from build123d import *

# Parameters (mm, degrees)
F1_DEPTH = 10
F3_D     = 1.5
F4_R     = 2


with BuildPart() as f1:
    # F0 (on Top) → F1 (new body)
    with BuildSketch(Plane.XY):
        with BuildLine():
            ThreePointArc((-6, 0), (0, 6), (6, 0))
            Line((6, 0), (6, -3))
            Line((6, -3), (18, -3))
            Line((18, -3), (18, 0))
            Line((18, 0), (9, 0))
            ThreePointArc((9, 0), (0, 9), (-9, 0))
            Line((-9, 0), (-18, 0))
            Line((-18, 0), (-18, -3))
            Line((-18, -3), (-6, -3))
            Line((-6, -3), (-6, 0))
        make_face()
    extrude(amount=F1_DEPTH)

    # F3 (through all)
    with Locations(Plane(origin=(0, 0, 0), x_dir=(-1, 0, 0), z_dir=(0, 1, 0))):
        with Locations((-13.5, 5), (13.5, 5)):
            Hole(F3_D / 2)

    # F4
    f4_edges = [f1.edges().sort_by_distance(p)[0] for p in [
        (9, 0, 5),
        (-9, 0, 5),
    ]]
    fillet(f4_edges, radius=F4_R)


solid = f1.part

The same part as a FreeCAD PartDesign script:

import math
import FreeCAD as App
import Part
import Sketcher

V = App.Vector
Q = App.Units.Quantity


def edges_at(feature, points):
    """Names of the edges that pass closest to the given points."""
    edges = feature.Shape.Edges
    near = lambda p: min(range(len(edges)), key=lambda i: edges[i].distToShape(Part.Vertex(*p))[0])
    return sorted({f"Edge{near(p) + 1}" for p in points})

doc = App.newDocument("Part")
body = doc.addObject("PartDesign::Body", "Body")

sketch1 = doc.addObject("Sketcher::SketchObject", "Sketch")
body.addObject(sketch1)
sketch1.AttachmentSupport = (doc.XY_Plane, [""])
sketch1.MapMode = "FlatFace"
sketch1.addGeometry([
    Part.ArcOfCircle(Part.Circle(V(0, 0, 0), V(0, 0, 1), 6), math.radians(0), math.radians(180)),
    Part.LineSegment(V(6, 0, 0), V(6, -3, 0)),
    Part.LineSegment(V(6, -3, 0), V(18, -3, 0)),
    Part.LineSegment(V(18, -3, 0), V(18, 0, 0)),
    Part.LineSegment(V(18, 0, 0), V(9, 0, 0)),
    Part.ArcOfCircle(Part.Circle(V(0, 0, 0), V(0, 0, 1), 9), math.radians(0), math.radians(180)),
    Part.LineSegment(V(-9, 0, 0), V(-18, 0, 0)),
    Part.LineSegment(V(-18, 0, 0), V(-18, -3, 0)),
    Part.LineSegment(V(-18, -3, 0), V(-6, -3, 0)),
    Part.LineSegment(V(-6, -3, 0), V(-6, 0, 0)),
], False)
sketch1.addConstraint([
    Sketcher.Constraint("Tangent", 0, 1, 1, 1),
    Sketcher.Constraint("Coincident", 1, 2, 2, 1),
    Sketcher.Constraint("Coincident", 2, 2, 3, 1),
    Sketcher.Constraint("Coincident", 3, 2, 4, 1),
    Sketcher.Constraint("Coincident", 4, 2, 5, 1),
    Sketcher.Constraint("Coincident", 5, 2, 6, 1),
    Sketcher.Constraint("Coincident", 6, 2, 7, 1),
    Sketcher.Constraint("Coincident", 7, 2, 8, 1),
    Sketcher.Constraint("Coincident", 8, 2, 9, 1),
    Sketcher.Constraint("Tangent", 9, 2, 0, 2),
    Sketcher.Constraint("Vertical", 1),
    Sketcher.Constraint("Horizontal", 2),
    Sketcher.Constraint("Vertical", 3),
    Sketcher.Constraint("Horizontal", 4),
    Sketcher.Constraint("Horizontal", 6),
    Sketcher.Constraint("Vertical", 7),
    Sketcher.Constraint("Horizontal", 8),
    Sketcher.Constraint("Vertical", 9),
    Sketcher.Constraint("Coincident", 0, 3, -1, 1),
    Sketcher.Constraint("Coincident", 5, 3, -1, 1),
    Sketcher.Constraint("Symmetric", 3, 2, 6, 2, -1, 1),
    Sketcher.Constraint("PointOnObject", 3, 2, -1),
    Sketcher.Constraint("Horizontal", 2, 2, 7, 2),
    Sketcher.Constraint("Radius", 0, Q("6 mm")),
    Sketcher.Constraint("Radius", 5, Q("9 mm")),
    Sketcher.Constraint("DistanceX", 2, 1, 2, 2, Q("12 mm")),
    Sketcher.Constraint("DistanceY", 1, 2, 1, 1, Q("3 mm")),
])
pad1 = doc.addObject("PartDesign::Pad", "Pad")
body.addObject(pad1)
pad1.Profile = sketch1
pad1.Length = 10

sketch2 = doc.addObject("Sketcher::SketchObject", "Sketch001")
body.addObject(sketch2)
sketch2.AttachmentSupport = (doc.XZ_Plane, [""])
sketch2.MapMode = "FlatFace"
sketch2.addGeometry([
    Part.Circle(V(13.5, 5, 0), V(0, 0, 1), 0.8),
    Part.Circle(V(-13.5, 5, 0), V(0, 0, 1), 0.8),
], False)
sketch2.addConstraint([
    Sketcher.Constraint("Equal", 0, 1),
    Sketcher.Constraint("Symmetric", 0, 3, 1, 3, -2),
    Sketcher.Constraint("Diameter", 0, Q("1.5 mm")),
    Sketcher.Constraint("DistanceY", -1, 1, 0, 3, Q("5 mm")),
    Sketcher.Constraint("DistanceX", 1, 3, 0, 3, Q("27 mm")),
])
doc.recompute()
hole = doc.addObject("PartDesign::Hole", "Hole")
body.addObject(hole)
hole.Profile = sketch2
hole.ThreadType = "None"
hole.Diameter = 1.5
hole.DepthType = "ThroughAll"
hole.Reversed = True
doc.recompute()

fillet = doc.addObject("PartDesign::Fillet", "Fillet")
body.addObject(fillet)
fillet.Base = (hole, edges_at(hole, [(9, 0, 5), (-9, 0, 5)]))
fillet.Radius = 2

doc.recompute()
